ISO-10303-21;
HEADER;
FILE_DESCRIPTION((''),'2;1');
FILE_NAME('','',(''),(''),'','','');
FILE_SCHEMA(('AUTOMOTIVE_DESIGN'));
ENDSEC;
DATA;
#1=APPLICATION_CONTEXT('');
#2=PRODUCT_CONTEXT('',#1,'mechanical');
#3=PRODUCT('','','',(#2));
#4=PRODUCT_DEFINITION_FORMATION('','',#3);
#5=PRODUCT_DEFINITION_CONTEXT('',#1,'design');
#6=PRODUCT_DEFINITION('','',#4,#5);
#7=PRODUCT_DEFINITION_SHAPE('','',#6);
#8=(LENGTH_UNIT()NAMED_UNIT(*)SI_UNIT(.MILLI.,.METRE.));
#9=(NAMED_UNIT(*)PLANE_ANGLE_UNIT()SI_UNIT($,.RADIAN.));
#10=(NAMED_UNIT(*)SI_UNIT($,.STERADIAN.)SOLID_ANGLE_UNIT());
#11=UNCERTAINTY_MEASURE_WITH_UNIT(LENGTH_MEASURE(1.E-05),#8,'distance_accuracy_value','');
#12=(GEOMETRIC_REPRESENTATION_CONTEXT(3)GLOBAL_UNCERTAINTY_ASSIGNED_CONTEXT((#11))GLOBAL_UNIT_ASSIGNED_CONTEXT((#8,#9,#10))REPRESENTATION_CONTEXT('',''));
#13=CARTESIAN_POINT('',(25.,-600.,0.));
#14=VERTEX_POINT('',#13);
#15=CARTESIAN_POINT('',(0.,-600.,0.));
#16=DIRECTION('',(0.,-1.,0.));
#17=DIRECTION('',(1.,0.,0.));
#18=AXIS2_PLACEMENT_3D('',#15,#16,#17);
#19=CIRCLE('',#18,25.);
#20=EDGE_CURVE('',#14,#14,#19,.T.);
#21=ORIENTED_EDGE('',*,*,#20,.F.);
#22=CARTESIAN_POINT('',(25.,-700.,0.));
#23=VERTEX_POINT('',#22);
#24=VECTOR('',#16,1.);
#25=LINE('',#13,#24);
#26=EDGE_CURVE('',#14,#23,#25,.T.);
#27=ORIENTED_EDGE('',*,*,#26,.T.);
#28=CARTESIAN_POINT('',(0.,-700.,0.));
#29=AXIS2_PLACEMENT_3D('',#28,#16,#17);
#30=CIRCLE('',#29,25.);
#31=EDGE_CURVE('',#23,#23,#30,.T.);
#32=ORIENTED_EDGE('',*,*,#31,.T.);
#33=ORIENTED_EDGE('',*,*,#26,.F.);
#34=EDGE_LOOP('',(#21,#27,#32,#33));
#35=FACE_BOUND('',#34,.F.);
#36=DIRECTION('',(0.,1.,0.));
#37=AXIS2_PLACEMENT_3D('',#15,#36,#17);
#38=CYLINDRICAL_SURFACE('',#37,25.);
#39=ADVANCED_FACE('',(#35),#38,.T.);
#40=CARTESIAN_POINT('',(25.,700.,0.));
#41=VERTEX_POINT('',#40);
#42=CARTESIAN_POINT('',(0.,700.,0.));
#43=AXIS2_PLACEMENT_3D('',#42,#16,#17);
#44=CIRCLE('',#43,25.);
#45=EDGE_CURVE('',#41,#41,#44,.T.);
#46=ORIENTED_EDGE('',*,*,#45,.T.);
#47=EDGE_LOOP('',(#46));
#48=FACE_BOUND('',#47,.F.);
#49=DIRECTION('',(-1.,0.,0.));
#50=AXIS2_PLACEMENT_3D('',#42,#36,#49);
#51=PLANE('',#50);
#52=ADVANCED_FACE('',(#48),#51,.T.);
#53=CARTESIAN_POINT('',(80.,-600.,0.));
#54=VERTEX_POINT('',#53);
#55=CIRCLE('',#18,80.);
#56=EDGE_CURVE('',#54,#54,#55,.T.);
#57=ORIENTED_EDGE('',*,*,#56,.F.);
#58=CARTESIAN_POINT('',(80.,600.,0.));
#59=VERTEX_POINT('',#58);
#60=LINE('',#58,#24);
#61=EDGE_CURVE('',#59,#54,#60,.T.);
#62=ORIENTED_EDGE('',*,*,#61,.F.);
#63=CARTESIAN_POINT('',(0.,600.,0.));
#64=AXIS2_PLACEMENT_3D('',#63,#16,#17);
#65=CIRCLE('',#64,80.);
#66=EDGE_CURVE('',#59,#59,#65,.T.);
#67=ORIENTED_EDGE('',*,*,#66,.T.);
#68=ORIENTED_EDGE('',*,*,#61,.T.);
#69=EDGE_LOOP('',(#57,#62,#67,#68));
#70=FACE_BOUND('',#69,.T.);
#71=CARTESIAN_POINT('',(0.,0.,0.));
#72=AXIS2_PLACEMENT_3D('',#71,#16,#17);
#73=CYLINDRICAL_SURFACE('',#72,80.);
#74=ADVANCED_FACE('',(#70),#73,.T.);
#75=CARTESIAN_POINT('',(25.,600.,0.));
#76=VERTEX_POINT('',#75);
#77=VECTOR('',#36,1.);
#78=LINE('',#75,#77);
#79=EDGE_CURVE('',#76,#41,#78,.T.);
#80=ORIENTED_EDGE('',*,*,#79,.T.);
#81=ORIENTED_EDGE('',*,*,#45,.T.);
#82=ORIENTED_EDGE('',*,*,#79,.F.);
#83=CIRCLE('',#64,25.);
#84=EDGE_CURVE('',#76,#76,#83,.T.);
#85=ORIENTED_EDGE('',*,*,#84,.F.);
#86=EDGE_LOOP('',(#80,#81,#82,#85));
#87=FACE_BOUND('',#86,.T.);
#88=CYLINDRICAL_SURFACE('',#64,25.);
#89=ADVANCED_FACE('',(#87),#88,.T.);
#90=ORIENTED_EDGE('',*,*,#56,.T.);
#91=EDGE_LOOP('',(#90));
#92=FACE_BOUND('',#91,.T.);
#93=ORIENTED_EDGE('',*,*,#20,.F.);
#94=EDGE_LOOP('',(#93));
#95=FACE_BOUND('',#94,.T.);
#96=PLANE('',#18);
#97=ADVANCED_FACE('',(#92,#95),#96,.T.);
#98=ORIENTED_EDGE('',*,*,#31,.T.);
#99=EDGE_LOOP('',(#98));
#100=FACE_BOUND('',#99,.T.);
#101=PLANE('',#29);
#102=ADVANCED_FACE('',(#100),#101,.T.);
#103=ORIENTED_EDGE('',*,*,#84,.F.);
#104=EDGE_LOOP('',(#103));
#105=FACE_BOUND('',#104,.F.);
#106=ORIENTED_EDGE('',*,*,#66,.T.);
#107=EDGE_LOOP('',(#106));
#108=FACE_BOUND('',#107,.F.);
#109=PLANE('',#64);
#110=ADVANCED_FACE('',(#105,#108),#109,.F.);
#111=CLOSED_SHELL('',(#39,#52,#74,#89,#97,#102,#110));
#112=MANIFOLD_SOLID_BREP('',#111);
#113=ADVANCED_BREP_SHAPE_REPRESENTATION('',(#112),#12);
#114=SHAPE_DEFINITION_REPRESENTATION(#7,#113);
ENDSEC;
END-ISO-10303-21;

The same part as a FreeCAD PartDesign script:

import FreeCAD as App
import Part
import Sketcher
from FreeCAD import Vector
Q = App.Units.Quantity

doc = App.newDocument("Part")
body = doc.addObject("PartDesign::Body", "Body")

sketch1 = body.newObject("Sketcher::SketchObject", "Sketch")
sketch1.AttachmentSupport = (doc.getObject("XZ_Plane"), [""])
sketch1.MapMode = "FlatFace"
sketch1.addGeometry(Part.Circle(Vector(0, 0, 0), Vector(0, 0, 1), 80), False)
sketch1.addConstraint(Sketcher.Constraint("Coincident", 0, 3, -1, 1))
sketch1.addConstraint(Sketcher.Constraint("Diameter", 0, Q("160 mm")))
pad1 = body.newObject("PartDesign::Pad", "Pad")
pad1.Profile = sketch1
pad1.Length = 1200
pad1.Midplane = True

sketch2 = body.newObject("Sketcher::SketchObject", "Sketch001")
sketch2.AttachmentSupport = (doc.getObject("XZ_Plane"), [""])
sketch2.MapMode = "FlatFace"
sketch2.AttachmentOffset = App.Placement(Vector(0, 0, 600), App.Rotation())
sketch2.addGeometry(Part.Circle(Vector(0, 0, 0), Vector(0, 0, 1), 25), False)
sketch2.addConstraint(Sketcher.Constraint("Coincident", 0, 3, -1, 1))
sketch2.addConstraint(Sketcher.Constraint("Diameter", 0, Q("50 mm")))
pad2 = body.newObject("PartDesign::Pad", "Pad001")
pad2.Profile = sketch2
pad2.Length = 100
body2 = doc.addObject("PartDesign::Body", "Body001")
doc.recompute()

body2.BaseFeature = body
doc.recompute()

mirroring = doc.addObject("Part::Mirroring", "Mirroring")
mirroring.Source = body
mirroring.Base = Vector(0, 0, 0)
mirroring.Normal = Vector(0, -1, 0)
body3 = doc.addObject("PartDesign::Body", "Body002")
body3.BaseFeature = mirroring
boolean = body2.newObject("PartDesign::Boolean", "Boolean")
boolean.Type = "Fuse"
boolean.addObjects([body3])
doc.recompute()
mirroring.Visibility = False

doc.recompute()
